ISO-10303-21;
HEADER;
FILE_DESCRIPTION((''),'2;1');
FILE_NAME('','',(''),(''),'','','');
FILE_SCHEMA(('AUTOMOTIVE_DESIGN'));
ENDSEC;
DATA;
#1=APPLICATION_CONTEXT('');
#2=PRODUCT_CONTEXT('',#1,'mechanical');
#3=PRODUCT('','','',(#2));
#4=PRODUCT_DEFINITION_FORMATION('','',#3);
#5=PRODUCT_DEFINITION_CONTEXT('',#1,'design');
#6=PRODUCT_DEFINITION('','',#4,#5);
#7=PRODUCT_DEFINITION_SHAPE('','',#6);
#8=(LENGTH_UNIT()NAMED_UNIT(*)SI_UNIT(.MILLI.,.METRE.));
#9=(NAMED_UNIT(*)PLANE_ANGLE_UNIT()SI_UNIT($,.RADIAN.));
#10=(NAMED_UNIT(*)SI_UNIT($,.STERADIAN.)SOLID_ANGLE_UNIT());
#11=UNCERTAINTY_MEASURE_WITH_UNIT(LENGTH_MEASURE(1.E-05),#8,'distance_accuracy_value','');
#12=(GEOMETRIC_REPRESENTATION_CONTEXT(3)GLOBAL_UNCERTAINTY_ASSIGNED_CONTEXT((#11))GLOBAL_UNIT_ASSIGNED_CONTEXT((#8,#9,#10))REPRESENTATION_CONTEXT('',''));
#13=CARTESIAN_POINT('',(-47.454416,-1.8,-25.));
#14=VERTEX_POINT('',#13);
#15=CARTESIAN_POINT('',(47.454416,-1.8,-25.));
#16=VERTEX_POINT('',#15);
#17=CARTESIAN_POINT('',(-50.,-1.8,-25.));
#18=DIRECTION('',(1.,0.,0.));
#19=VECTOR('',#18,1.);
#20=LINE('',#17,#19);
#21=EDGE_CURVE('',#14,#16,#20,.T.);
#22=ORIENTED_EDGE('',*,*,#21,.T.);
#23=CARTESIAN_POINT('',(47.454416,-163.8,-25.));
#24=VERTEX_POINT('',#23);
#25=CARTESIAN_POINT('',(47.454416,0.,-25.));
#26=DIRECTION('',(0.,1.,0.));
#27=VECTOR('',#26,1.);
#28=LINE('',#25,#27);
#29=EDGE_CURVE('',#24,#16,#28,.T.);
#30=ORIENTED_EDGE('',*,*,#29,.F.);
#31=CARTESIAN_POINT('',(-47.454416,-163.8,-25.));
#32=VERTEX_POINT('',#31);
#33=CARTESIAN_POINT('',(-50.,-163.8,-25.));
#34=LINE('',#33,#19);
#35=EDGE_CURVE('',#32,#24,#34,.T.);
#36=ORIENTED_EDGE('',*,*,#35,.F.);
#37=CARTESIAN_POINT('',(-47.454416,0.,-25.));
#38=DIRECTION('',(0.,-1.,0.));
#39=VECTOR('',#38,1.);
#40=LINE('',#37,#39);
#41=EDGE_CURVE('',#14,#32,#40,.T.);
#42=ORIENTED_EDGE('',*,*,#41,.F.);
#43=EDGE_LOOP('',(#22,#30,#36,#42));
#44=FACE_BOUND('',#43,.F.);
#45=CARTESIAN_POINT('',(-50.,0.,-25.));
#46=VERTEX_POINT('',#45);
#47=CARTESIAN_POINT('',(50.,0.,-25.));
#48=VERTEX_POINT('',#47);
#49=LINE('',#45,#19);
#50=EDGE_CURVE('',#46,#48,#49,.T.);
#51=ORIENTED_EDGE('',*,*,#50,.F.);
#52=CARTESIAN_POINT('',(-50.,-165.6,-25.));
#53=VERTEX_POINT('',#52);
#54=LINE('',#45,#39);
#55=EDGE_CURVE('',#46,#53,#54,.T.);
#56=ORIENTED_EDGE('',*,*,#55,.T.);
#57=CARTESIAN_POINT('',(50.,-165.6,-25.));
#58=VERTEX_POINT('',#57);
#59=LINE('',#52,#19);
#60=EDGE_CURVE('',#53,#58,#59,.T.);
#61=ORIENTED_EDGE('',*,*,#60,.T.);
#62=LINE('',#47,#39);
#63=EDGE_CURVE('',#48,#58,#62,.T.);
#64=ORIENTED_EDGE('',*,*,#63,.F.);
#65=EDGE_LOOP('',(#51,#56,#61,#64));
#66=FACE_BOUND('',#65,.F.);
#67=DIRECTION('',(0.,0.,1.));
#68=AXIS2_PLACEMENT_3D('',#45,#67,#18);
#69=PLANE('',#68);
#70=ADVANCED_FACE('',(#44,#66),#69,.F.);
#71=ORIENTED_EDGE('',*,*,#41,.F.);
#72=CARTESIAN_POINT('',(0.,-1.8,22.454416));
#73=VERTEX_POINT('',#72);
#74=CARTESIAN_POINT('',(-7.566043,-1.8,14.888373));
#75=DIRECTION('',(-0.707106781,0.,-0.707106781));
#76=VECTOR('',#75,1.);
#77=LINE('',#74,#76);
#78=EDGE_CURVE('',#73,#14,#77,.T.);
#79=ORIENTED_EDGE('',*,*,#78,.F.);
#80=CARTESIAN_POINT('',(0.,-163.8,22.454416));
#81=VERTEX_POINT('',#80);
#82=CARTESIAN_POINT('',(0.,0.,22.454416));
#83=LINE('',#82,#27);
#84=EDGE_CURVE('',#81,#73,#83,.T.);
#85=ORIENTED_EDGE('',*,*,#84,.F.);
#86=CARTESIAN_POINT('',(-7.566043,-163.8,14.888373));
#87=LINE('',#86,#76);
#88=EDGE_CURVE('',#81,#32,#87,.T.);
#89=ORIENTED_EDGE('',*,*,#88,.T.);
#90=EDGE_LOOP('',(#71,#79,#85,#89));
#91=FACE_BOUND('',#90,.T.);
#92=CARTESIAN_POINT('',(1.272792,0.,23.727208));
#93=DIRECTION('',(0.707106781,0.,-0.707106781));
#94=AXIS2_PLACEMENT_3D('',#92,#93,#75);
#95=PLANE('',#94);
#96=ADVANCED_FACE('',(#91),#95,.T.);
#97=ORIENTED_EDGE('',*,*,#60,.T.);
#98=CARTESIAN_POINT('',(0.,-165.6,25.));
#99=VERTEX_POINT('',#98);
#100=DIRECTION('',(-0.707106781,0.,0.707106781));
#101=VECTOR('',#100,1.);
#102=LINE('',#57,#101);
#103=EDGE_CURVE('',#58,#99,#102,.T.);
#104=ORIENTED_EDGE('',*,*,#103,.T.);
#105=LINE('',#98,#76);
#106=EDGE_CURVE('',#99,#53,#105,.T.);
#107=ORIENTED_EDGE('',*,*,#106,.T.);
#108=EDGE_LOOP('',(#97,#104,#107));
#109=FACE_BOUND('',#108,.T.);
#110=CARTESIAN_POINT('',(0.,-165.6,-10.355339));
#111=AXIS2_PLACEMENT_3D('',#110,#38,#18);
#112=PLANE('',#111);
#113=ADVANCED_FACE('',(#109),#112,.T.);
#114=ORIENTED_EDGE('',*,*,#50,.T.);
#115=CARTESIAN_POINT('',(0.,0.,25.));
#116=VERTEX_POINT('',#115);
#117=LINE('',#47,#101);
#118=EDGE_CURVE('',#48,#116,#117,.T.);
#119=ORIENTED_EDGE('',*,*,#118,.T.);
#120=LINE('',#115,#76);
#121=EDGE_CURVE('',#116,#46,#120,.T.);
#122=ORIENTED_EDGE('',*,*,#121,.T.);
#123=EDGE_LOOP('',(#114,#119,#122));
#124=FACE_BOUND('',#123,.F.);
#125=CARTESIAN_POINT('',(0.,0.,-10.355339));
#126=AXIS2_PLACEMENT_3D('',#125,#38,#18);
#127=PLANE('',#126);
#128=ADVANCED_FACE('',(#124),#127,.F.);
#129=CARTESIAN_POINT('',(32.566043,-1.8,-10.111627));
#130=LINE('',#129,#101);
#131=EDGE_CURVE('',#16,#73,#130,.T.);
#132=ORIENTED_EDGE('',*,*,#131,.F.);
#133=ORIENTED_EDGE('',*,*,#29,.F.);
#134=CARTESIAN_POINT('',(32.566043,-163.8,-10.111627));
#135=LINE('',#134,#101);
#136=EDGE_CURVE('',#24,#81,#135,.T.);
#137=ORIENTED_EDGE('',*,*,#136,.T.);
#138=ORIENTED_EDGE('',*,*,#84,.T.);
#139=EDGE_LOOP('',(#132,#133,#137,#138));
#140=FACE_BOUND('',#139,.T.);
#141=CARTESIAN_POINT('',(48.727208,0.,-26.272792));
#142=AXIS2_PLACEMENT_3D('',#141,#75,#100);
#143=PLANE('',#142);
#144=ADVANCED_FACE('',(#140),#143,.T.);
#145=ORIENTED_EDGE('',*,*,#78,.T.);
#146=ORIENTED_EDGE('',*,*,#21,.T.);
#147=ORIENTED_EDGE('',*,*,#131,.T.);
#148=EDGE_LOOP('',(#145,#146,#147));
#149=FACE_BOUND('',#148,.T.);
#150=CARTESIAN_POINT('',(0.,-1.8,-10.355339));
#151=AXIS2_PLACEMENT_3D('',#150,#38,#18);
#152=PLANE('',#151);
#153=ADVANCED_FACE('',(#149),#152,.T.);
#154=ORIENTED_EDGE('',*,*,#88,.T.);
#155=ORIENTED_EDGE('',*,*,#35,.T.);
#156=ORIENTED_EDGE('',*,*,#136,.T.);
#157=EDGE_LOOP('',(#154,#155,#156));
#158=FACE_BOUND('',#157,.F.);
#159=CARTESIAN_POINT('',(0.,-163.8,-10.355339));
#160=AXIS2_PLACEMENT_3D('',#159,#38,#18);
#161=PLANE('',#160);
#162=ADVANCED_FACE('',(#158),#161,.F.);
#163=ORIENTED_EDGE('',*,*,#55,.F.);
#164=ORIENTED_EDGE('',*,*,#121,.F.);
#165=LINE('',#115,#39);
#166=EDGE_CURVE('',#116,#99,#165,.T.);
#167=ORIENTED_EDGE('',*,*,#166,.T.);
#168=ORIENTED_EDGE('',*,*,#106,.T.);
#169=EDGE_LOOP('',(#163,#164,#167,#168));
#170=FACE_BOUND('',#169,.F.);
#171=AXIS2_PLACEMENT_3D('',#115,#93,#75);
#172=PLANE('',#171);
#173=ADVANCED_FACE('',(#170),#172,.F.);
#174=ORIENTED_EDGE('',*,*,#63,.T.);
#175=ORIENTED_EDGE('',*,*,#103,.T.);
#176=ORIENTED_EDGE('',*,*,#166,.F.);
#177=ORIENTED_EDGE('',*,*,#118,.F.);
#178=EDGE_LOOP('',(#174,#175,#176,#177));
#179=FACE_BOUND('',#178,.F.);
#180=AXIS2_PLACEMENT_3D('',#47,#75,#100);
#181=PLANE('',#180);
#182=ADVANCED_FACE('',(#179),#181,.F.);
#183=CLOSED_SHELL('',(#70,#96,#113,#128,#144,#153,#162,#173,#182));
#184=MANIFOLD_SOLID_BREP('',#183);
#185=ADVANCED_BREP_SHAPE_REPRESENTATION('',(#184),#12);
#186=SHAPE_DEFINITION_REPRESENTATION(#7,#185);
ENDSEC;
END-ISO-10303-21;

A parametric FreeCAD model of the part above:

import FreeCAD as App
import Part
import Sketcher


def faces_at(feature, points):
    """Names of the faces that lie closest to the given points."""
    faces = feature.Shape.Faces
    near = lambda p: min(range(len(faces)), key=lambda i: faces[i].distToShape(Part.Vertex(*p))[0])
    return sorted({f"Face{near(p) + 1}" for p in points})


def add_polygon(sketch, points):
    """Adds a closed chain of lines whose ends are joined by coincident constraints."""
    first, n = sketch.GeometryCount, len(points)
    for a, b in zip(points, points[1:] + points[:1]):
        sketch.addGeometry(Part.LineSegment(App.Vector(*a, 0), App.Vector(*b, 0)), False)
    for i in range(n):
        sketch.addConstraint(Sketcher.Constraint("Coincident", first + i, 2, first + (i + 1) % n, 1))

doc = App.newDocument("Part")
params = doc.addObject("Spreadsheet::Sheet", "Params")
for row, (alias, value) in enumerate([
    ("sketch1_width", "100 mm"),
    ("pad1_length", "165.6 mm"),
    ("thickness_wall", "1.8 mm"),
], start=1):
    params.set(f"A{row}", alias)
    params.set(f"B{row}", "=" + value)
    params.setAlias(f"B{row}", alias)

body = doc.addObject("PartDesign::Body", "Body")

# Sketch on XZ plane
sketch1 = doc.addObject("Sketcher::SketchObject", "Sketch")
body.addObject(sketch1)
sketch1.AttachmentSupport = (doc.XZ_Plane, [""])
sketch1.MapMode = "FlatFace"
add_polygon(sketch1, [(50, -25), (0, 25), (-50, -25)])  # lines 0-2
sketch1.addConstraint([
    Sketcher.Constraint("Horizontal", 2),
    Sketcher.Constraint("PointOnObject", 0, 2, -2),
    Sketcher.Constraint("Perpendicular", 0, 1),
    Sketcher.Constraint("Equal", 0, 1),
    Sketcher.Constraint("DistanceX", 2, 1, 2, 2, 100.0),
    Sketcher.Constraint("DistanceY", -1, 1, 0, 2, 25.0),
])
sketch1.setExpression("Constraints[7]", "Params.sketch1_width")
pad1 = doc.addObject("PartDesign::Pad", "Pad")
body.addObject(pad1)
pad1.Profile = sketch1
pad1.setExpression("Length", "Params.pad1_length")
doc.recompute()

thickness = doc.addObject("PartDesign::Thickness", "Thickness")
body.addObject(thickness)
thickness.Base = (pad1, faces_at(pad1, [(0, -82.8, -25)]))
thickness.setExpression("Value", "Params.thickness_wall")
thickness.Reversed = True
thickness.Join = "Arc"

doc.recompute()
